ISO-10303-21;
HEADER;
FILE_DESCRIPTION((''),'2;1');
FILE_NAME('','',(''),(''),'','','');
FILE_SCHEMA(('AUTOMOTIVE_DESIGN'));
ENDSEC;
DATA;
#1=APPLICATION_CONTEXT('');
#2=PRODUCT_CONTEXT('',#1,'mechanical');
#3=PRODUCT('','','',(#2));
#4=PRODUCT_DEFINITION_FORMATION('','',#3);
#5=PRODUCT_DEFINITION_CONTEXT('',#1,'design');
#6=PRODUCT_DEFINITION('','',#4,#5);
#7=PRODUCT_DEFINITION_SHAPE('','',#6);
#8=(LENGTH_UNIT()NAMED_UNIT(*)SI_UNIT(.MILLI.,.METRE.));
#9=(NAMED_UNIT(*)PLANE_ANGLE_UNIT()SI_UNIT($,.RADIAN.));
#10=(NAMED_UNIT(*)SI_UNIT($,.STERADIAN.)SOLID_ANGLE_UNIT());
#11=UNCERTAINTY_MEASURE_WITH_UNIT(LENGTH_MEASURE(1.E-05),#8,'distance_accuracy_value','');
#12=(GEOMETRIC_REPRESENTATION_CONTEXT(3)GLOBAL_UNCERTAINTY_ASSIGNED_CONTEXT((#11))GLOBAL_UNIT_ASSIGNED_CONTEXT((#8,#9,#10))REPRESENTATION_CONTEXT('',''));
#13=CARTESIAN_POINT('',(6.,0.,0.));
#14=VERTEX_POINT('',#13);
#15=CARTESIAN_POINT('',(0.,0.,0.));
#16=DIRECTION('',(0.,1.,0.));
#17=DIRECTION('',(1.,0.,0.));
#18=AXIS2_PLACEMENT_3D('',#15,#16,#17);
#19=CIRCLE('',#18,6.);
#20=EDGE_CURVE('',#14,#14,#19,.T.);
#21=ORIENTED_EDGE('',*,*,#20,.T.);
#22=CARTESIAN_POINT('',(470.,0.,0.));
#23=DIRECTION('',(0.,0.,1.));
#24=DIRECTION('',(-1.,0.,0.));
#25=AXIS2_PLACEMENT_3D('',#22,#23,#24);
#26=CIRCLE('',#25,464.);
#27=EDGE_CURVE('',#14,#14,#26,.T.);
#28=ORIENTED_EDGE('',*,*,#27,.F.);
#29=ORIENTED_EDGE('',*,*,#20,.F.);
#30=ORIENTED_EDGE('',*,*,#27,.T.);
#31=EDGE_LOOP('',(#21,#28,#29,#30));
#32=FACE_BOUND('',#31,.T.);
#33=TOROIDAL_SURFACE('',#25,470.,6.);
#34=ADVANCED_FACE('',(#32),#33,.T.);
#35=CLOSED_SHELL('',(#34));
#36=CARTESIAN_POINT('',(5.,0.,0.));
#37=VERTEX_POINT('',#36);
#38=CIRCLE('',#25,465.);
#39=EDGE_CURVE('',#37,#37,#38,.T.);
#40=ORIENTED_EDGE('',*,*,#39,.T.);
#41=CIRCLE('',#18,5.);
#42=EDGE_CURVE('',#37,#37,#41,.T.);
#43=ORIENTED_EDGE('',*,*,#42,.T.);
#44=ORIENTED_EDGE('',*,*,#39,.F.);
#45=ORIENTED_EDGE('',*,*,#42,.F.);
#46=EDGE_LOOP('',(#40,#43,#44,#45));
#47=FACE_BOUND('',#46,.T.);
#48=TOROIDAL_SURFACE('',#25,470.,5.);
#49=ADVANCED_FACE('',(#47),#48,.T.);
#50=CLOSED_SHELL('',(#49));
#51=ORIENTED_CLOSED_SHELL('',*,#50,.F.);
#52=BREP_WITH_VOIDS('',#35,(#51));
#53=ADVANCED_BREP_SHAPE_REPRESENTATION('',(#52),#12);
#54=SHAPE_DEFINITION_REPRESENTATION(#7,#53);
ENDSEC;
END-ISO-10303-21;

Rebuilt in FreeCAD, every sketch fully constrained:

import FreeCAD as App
import Part
import Sketcher

doc = App.newDocument("Part")
body = doc.addObject("PartDesign::Body", "Body")

# Sketch on XZ plane
sketch1 = body.newObject("Sketcher::SketchObject", "Sketch")
sketch1.AttachmentSupport = (doc.getObject("XZ_Plane"), [""])
sketch1.MapMode = "FlatFace"
sketch1.addGeometry([
    Part.Circle(App.Vector(0, 0, 0), App.Vector(0, 0, 1), 6),
    Part.Circle(App.Vector(0, 0, 0), App.Vector(0, 0, 1), 5),
], False)
sketch1.addGeometry(Part.LineSegment(App.Vector(470, 0, 0), App.Vector(470, 10, 0)), True)  # axis
sketch1.addConstraint([
    Sketcher.Constraint("Vertical", 2),
    Sketcher.Constraint("Coincident", 0, 3, -1, 1),
    Sketcher.Constraint("Coincident", 1, 3, -1, 1),
    Sketcher.Constraint("PointOnObject", 2, 1, -1),
    Sketcher.Constraint("Diameter", 0, 12.0),
    Sketcher.Constraint("Diameter", 1, 10.0),
    Sketcher.Constraint("DistanceY", 2, 1, 2, 2, 10.0),
    Sketcher.Constraint("DistanceX", -1, 1, 2, 1, 470.0),
])
revolution = body.newObject("PartDesign::Revolution", "Revolution")
revolution.Profile = sketch1
revolution.ReferenceAxis = (sketch1, ["Axis0"])
revolution.Angle = 360

doc.recompute()
